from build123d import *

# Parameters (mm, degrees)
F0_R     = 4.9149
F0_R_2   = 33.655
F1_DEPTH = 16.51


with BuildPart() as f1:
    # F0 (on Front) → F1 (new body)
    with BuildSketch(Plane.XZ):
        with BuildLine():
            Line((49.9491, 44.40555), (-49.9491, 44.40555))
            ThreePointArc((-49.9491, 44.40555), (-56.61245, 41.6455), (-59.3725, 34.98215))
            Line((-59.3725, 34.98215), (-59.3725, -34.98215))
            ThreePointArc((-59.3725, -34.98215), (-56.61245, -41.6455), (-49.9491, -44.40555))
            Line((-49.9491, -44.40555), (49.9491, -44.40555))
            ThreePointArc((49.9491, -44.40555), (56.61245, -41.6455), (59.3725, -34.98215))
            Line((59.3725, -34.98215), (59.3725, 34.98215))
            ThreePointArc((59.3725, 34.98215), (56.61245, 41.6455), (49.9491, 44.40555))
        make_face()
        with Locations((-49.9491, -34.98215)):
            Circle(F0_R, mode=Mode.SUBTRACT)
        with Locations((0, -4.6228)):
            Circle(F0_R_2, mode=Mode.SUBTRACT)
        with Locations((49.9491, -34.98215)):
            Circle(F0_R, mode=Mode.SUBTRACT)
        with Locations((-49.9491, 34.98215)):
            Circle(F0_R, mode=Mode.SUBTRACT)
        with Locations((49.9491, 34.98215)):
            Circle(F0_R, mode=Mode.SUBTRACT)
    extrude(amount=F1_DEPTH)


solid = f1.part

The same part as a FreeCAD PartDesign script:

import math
import FreeCAD as App
import Part
import Sketcher
from FreeCAD import Vector
Q = App.Units.Quantity

doc = App.newDocument("Part")
body = doc.addObject("PartDesign::Body", "Body")

sketch1 = body.newObject("Sketcher::SketchObject", "Sketch")
sketch1.AttachmentSupport = (doc.getObject("XZ_Plane"), [""])
sketch1.MapMode = "FlatFace"
sketch1.addGeometry([
    Part.LineSegment(Vector(49.9491, 44.40555, 0), Vector(-49.9491, 44.40555, 0)),
    Part.ArcOfCircle(Part.Circle(Vector(-49.9491, 34.98215, 0), Vector(0, 0, 1), 9.4234), math.radians(90.000001), math.radians(179.999999)),
    Part.LineSegment(Vector(-59.3725, 34.98215, 0), Vector(-59.3725, -34.98215, 0)),
    Part.ArcOfCircle(Part.Circle(Vector(-49.9491, -34.98215, 0), Vector(0, 0, 1), 9.4234), math.radians(-179.999999), math.radians(-90.000001)),
    Part.LineSegment(Vector(-49.9491, -44.40555, 0), Vector(49.9491, -44.40555, 0)),
    Part.ArcOfCircle(Part.Circle(Vector(49.9491, -34.98215, 0), Vector(0, 0, 1), 9.4234), math.radians(-89.999999), math.radians(-0.000001)),
    Part.LineSegment(Vector(59.3725, -34.98215, 0), Vector(59.3725, 34.98215, 0)),
    Part.ArcOfCircle(Part.Circle(Vector(49.9491, 34.98215, 0), Vector(0, 0, 1), 9.4234), math.radians(0.000001), math.radians(89.999999)),
    Part.Circle(Vector(-49.9491, -34.98215, 0), Vector(0, 0, 1), 4.9149),
    Part.Circle(Vector(0, -4.6228, 0), Vector(0, 0, 1), 33.655),
    Part.Circle(Vector(49.9491, -34.98215, 0), Vector(0, 0, 1), 4.9149),
    Part.Circle(Vector(-49.9491, 34.98215, 0), Vector(0, 0, 1), 4.9149),
    Part.Circle(Vector(49.9491, 34.98215, 0), Vector(0, 0, 1), 4.9149),
], False)
sketch1.addConstraint([
    Sketcher.Constraint("Tangent", 0, 2, 1, 1),
    Sketcher.Constraint("Tangent", 1, 2, 2, 1),
    Sketcher.Constraint("Tangent", 2, 2, 3, 1),
    Sketcher.Constraint("Tangent", 3, 2, 4, 1),
    Sketcher.Constraint("Tangent", 4, 2, 5, 1),
    Sketcher.Constraint("Tangent", 5, 2, 6, 1),
    Sketcher.Constraint("Tangent", 6, 2, 7, 1),
    Sketcher.Constraint("Tangent", 7, 2, 0, 1),
    Sketcher.Constraint("Horizontal", 0),
    Sketcher.Constraint("Vertical", 2),
    Sketcher.Constraint("Horizontal", 4),
    Sketcher.Constraint("Vertical", 6),
    Sketcher.Constraint("Coincident", 8, 3, 3, 3),
    Sketcher.Constraint("Coincident", 10, 3, 5, 3),
    Sketcher.Constraint("Coincident", 11, 3, 1, 3),
    Sketcher.Constraint("Coincident", 12, 3, 7, 3),
    Sketcher.Constraint("Equal", 1, 3),
    Sketcher.Constraint("Equal", 3, 5),
    Sketcher.Constraint("Equal", 5, 7),
    Sketcher.Constraint("Equal", 8, 10),
    Sketcher.Constraint("Equal", 10, 11),
    Sketcher.Constraint("Equal", 11, 12),
    Sketcher.Constraint("Symmetric", 1, 3, 5, 3, -1, 1),
    Sketcher.Constraint("PointOnObject", 9, 3, -2),
    Sketcher.Constraint("Diameter", 9, Q("2.65 in")),
    Sketcher.Constraint("Diameter", 8, Q("0.387 in")),
    Sketcher.Constraint("Radius", 1, Q("0.371 in")),
    Sketcher.Constraint("DistanceX", 0, 2, 0, 1, Q("3.933 in")),
    Sketcher.Constraint("DistanceY", 2, 2, 2, 1, Q("2.7545 in")),
    Sketcher.Constraint("DistanceY", 9, 3, -1, 1, Q("0.182 in")),
])
pad1 = body.newObject("PartDesign::Pad", "Pad")
pad1.Profile = sketch1
pad1.Length = Q("0.65 in")

doc.recompute()
